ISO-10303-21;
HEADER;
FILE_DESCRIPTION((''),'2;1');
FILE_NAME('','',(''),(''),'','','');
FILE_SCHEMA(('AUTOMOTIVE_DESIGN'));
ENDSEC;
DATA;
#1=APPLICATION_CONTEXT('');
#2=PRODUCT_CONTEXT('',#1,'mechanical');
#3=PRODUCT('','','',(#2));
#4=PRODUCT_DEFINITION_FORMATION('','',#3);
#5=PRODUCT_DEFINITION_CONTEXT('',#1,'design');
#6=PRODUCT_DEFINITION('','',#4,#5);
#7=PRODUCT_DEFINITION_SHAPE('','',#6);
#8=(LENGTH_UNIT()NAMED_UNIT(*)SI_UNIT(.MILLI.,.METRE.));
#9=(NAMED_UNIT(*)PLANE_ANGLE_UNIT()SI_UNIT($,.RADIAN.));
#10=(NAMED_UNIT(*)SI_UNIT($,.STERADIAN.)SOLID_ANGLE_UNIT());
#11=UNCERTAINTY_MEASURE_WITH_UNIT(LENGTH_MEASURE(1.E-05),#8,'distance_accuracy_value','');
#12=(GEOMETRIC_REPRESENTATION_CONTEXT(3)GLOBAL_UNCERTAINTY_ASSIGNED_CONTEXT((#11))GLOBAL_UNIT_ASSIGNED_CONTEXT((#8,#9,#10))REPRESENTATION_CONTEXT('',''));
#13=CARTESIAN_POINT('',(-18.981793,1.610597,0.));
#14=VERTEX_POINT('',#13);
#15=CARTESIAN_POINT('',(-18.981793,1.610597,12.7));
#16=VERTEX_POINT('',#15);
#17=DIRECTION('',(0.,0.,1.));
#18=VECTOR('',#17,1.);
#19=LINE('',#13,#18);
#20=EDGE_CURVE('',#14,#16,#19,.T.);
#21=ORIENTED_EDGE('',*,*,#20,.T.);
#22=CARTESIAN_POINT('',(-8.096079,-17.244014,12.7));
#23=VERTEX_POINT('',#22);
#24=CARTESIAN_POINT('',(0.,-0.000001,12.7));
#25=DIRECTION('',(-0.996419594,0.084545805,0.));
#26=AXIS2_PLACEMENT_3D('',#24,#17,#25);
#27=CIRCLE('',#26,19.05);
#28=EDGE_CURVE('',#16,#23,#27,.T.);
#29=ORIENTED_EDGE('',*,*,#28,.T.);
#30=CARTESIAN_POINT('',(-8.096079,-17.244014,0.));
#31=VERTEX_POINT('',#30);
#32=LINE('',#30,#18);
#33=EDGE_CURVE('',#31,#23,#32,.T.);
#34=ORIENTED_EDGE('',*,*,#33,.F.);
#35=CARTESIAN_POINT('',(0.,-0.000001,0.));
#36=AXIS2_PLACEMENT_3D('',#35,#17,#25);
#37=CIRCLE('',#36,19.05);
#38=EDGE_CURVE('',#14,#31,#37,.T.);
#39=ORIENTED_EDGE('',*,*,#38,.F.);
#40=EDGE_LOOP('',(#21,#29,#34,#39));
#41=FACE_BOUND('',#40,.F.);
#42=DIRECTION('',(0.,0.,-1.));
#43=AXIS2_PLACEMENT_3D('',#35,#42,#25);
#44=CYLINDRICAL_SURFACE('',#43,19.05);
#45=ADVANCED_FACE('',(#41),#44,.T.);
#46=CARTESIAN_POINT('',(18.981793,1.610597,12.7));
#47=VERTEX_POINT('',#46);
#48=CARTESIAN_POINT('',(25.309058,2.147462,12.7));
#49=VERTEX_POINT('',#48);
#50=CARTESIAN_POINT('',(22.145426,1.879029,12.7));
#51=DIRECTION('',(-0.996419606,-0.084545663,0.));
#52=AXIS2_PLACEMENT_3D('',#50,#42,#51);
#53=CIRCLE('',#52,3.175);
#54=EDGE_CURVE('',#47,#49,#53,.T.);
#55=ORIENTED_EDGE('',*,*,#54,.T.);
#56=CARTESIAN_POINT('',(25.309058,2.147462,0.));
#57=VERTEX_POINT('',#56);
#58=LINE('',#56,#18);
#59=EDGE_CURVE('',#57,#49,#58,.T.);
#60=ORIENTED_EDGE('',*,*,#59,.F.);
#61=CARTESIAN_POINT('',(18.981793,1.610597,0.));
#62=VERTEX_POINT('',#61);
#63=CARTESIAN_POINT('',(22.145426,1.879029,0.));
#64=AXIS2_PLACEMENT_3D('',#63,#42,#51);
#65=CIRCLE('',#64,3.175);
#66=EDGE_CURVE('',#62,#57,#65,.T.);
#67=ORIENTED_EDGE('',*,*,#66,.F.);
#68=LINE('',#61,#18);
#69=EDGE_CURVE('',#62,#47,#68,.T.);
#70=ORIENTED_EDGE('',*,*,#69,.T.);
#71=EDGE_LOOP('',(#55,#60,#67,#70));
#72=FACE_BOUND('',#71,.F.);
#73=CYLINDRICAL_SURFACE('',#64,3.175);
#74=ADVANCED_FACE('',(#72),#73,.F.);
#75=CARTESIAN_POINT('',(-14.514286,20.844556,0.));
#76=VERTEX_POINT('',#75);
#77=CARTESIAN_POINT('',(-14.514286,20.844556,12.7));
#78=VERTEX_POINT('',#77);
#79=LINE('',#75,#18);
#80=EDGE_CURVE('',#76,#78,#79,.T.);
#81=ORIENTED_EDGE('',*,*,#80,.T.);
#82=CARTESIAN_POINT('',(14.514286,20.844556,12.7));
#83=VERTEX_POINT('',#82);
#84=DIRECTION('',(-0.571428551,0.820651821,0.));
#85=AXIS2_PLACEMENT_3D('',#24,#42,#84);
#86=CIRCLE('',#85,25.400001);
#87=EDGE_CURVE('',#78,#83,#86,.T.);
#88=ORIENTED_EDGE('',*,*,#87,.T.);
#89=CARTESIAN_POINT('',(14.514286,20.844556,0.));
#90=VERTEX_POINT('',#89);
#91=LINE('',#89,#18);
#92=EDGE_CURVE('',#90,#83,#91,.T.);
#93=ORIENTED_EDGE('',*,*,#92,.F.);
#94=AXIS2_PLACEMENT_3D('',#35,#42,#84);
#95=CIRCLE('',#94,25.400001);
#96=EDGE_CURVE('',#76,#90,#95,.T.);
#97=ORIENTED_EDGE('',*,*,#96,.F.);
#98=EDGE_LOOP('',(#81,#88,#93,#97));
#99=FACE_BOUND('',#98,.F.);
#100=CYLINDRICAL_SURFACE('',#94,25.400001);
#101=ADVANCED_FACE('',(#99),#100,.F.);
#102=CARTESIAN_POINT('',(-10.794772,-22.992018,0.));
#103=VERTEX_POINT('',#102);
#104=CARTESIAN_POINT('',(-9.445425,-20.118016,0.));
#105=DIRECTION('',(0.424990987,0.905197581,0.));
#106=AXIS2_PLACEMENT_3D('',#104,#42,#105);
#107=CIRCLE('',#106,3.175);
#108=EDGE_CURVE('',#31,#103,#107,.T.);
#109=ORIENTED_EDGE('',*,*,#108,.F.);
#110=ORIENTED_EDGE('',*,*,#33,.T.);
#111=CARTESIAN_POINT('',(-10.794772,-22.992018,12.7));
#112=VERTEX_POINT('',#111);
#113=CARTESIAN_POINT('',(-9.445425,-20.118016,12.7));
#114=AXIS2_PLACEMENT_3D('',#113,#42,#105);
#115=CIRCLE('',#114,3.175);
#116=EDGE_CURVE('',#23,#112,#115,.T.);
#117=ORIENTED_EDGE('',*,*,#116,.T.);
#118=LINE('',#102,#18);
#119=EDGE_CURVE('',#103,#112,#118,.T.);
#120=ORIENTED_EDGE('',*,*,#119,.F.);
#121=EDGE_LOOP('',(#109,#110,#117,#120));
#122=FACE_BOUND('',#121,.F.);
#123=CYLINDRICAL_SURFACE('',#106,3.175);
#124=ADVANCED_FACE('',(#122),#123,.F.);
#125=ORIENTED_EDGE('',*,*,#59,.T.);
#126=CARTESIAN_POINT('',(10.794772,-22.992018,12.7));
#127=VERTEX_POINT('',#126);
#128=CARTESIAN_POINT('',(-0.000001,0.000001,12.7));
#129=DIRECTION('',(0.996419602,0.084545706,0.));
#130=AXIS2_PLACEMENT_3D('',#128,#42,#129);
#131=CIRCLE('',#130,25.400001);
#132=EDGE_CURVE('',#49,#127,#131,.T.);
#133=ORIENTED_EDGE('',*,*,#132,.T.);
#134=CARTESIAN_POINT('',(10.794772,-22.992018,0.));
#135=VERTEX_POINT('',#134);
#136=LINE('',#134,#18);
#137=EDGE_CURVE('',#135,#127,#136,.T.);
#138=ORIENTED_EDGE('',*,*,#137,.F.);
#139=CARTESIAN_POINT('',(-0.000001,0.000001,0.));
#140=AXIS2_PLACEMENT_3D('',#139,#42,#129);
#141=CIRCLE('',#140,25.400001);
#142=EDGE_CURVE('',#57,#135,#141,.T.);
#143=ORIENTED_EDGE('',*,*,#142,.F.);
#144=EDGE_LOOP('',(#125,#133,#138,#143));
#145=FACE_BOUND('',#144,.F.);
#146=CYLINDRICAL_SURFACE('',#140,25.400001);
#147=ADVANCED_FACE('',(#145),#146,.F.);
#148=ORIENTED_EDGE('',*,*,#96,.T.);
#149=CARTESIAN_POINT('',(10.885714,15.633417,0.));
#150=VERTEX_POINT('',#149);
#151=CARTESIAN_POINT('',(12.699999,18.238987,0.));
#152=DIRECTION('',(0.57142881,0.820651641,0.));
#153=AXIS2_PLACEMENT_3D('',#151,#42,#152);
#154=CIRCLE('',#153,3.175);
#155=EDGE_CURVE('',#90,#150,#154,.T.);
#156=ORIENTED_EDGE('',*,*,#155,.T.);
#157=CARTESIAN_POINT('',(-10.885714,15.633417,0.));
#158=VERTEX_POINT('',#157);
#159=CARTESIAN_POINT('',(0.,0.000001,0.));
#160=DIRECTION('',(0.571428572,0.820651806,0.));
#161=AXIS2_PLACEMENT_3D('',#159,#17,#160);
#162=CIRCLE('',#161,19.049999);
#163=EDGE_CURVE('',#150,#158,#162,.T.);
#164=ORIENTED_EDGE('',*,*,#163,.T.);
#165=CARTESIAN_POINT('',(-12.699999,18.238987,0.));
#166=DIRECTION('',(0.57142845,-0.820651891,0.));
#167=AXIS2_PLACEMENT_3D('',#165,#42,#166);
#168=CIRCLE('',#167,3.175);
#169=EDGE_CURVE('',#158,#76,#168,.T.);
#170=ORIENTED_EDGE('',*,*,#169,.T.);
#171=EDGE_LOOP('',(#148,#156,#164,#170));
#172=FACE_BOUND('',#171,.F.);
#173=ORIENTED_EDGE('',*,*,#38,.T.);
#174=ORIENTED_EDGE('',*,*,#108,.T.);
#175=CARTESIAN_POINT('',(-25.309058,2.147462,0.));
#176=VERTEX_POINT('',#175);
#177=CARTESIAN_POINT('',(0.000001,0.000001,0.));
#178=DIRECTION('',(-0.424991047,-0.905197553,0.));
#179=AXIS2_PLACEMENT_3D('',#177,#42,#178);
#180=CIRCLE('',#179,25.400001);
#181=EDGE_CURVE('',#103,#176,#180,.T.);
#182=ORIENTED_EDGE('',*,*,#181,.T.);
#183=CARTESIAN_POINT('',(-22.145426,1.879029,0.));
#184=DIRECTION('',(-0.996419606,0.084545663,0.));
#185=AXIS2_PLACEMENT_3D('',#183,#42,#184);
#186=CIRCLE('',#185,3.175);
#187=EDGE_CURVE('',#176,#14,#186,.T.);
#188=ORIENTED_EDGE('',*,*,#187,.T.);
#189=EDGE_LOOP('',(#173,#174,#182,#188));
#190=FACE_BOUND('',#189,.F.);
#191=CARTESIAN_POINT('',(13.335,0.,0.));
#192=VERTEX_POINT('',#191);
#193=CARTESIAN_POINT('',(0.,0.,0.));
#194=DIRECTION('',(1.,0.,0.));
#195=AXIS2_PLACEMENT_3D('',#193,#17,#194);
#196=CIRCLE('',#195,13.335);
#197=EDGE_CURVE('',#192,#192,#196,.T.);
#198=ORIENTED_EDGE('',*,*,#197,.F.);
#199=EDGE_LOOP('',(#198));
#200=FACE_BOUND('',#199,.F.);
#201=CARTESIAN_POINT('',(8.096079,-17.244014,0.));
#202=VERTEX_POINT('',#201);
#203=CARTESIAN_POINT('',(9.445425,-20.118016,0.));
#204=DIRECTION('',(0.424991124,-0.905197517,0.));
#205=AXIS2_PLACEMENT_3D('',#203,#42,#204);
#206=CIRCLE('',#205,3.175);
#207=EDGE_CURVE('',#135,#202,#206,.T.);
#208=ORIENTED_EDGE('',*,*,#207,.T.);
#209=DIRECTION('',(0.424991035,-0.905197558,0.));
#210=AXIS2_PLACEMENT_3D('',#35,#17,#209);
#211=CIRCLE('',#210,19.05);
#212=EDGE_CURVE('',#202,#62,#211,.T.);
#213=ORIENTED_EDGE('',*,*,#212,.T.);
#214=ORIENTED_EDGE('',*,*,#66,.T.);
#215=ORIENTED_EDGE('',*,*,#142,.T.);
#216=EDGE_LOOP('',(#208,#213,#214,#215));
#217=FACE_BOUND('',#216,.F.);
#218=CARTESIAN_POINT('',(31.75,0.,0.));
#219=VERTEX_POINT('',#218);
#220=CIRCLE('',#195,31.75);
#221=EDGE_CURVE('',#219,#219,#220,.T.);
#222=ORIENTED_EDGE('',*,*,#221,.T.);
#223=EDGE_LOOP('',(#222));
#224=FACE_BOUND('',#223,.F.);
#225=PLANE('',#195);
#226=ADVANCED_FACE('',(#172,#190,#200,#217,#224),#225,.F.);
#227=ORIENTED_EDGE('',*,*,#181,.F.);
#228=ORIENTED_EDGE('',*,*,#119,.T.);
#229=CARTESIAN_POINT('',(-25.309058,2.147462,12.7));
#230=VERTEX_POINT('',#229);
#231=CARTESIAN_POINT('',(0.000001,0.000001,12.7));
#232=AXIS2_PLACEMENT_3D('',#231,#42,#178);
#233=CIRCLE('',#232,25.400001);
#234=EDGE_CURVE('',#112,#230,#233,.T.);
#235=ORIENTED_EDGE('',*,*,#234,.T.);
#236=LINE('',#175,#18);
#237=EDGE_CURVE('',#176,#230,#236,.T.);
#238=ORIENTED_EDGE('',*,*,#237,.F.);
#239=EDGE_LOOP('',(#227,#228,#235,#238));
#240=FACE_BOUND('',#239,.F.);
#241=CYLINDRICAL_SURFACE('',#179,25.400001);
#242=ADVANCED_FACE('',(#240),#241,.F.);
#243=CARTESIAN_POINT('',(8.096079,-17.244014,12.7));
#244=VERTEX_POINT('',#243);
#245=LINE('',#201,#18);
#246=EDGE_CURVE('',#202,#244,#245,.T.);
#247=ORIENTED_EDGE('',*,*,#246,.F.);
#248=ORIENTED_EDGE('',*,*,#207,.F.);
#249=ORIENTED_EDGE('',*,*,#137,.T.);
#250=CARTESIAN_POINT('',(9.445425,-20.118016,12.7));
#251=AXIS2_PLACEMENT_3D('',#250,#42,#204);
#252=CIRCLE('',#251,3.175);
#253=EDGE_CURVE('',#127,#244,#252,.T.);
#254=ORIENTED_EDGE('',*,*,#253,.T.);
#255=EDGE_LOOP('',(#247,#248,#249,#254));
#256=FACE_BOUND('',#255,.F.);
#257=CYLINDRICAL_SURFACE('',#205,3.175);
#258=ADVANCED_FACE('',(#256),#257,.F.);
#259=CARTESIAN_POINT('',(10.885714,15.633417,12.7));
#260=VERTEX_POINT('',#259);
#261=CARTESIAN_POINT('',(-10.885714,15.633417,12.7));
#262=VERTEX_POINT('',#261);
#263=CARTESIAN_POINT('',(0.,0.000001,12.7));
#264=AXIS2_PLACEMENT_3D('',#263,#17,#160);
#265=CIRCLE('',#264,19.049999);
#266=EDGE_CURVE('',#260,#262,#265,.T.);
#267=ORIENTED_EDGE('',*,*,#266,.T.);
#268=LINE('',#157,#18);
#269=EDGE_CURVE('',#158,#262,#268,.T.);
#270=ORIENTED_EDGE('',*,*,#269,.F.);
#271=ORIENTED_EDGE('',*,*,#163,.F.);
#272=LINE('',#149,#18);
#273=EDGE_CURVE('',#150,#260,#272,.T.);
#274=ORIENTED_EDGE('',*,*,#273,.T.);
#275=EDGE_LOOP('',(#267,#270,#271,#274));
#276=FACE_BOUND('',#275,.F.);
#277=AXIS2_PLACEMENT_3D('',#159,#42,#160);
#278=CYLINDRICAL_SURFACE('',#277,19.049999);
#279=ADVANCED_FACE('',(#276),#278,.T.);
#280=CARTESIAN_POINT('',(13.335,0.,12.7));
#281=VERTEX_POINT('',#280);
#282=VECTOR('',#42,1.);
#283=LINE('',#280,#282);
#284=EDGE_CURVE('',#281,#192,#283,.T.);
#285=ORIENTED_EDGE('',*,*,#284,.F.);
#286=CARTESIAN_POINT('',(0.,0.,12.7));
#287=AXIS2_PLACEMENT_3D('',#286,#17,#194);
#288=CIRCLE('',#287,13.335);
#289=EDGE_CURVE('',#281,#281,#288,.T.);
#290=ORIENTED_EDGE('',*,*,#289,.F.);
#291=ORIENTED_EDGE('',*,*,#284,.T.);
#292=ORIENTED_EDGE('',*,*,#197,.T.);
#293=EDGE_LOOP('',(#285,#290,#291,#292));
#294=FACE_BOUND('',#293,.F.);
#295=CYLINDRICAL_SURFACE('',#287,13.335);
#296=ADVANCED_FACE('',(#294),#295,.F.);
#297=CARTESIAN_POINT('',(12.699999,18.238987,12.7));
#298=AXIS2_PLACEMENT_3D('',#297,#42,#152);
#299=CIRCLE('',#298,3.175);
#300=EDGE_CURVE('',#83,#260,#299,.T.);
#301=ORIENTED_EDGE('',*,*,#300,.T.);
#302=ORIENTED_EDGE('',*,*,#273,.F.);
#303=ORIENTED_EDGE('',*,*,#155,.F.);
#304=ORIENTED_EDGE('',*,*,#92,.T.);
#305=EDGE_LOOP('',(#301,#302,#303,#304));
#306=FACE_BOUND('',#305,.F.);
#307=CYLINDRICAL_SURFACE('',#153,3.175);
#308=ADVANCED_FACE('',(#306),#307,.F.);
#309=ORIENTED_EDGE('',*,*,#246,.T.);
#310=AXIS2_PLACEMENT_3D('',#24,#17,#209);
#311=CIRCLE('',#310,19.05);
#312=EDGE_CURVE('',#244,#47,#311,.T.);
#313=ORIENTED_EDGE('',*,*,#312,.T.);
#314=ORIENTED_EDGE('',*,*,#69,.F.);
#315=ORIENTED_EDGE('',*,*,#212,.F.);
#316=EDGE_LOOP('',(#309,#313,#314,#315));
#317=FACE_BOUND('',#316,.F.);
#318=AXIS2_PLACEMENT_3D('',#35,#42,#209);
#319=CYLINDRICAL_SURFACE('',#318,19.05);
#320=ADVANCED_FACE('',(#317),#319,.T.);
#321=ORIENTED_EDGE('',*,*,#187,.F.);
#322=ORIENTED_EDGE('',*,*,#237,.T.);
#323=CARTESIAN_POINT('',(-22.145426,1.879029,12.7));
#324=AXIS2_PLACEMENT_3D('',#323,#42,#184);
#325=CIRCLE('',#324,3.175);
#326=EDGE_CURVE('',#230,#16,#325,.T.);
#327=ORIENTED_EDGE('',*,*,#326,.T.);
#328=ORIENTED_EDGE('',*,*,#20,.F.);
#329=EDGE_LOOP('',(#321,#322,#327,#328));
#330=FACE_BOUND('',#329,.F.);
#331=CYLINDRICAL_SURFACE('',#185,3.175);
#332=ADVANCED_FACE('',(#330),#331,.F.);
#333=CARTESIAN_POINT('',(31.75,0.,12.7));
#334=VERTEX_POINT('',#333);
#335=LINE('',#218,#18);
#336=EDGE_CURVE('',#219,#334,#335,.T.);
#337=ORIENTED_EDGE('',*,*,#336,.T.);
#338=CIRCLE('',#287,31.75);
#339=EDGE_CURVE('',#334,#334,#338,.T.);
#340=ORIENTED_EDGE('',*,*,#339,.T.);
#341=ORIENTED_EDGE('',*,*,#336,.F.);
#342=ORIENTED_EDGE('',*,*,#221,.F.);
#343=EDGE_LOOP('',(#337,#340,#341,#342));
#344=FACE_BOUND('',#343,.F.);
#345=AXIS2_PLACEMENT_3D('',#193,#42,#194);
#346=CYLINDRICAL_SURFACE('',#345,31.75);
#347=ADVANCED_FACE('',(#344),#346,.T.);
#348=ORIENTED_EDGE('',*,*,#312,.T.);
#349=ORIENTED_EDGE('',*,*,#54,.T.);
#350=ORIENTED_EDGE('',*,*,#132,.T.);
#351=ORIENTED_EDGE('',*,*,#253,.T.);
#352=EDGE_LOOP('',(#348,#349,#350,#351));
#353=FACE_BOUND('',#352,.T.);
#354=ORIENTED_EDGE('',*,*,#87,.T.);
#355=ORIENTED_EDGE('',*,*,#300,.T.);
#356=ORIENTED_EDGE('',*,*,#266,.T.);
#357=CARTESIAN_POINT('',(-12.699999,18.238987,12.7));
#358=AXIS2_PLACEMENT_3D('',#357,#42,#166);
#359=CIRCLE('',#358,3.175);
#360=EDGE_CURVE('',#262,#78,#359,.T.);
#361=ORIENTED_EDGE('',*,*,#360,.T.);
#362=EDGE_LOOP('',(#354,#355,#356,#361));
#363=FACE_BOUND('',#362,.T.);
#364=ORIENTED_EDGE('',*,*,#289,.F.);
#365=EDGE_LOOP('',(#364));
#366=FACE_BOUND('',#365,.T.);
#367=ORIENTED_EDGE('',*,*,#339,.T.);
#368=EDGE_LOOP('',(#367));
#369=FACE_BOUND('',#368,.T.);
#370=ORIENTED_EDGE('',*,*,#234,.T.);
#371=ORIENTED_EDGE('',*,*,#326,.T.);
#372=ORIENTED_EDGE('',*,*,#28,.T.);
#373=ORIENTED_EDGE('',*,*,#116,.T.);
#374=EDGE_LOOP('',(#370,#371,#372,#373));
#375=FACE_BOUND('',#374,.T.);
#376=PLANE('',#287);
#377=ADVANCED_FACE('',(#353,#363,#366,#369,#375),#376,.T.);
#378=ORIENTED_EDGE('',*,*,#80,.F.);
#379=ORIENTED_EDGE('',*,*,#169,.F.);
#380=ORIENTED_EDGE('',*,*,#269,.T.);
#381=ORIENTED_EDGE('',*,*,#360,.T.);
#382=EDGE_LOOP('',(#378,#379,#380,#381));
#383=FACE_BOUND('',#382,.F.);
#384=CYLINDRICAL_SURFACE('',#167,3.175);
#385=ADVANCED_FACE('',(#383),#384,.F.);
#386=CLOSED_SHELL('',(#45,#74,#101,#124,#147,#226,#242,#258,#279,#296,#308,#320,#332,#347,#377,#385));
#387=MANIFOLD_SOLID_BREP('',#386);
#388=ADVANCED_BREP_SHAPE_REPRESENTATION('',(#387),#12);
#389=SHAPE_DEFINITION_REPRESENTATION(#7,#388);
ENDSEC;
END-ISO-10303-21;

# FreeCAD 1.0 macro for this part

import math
import FreeCAD as App
import Part
import Sketcher

V = App.Vector
Q = App.Units.Quantity

doc = App.newDocument("Part")
body = doc.addObject("PartDesign::Body", "Body")

# Sketch on XY plane
sketch1 = body.newObject("Sketcher::SketchObject", "Sketch")
sketch1.AttachmentSupport = (doc.getObject("XY_Plane"), [""])
sketch1.MapMode = "FlatFace"
sketch1.addGeometry([
    Part.Circle(V(0, 0, 0), V(0, 0, 1), 31.75),  # 0
    Part.ArcOfCircle(Part.Circle(V(-9.445425, -20.118016, 0), V(0, 0, 1), 3.175), math.radians(-115.150102), math.radians(64.849907)),  # 1
    Part.ArcOfCircle(Part.Circle(V(0.000001, 0.000001, 0), V(0, 0, 1), 25.400001), math.radians(175.150098), math.radians(244.849903)),  # 2
    Part.ArcOfCircle(Part.Circle(V(-22.145426, 1.879029, 0), V(0, 0, 1), 3.175), math.radians(-4.849899), math.radians(175.150101)),  # 3
    Part.ArcOfCircle(Part.Circle(V(0, -0.000001, 0), V(0, 0, 1), 19.05), math.radians(175.150093), math.radians(244.849904)),  # 4
    Part.ArcOfCircle(Part.Circle(V(22.145426, 1.879029, 0), V(0, 0, 1), 3.175), math.radians(4.849899), math.radians(184.849899)),  # 5
    Part.ArcOfCircle(Part.Circle(V(-0.000001, 0.000001, 0), V(0, 0, 1), 25.400001), math.radians(-64.849903), math.radians(4.849902)),  # 6
    Part.ArcOfCircle(Part.Circle(V(9.445425, -20.118016, 0), V(0, 0, 1), 3.175), math.radians(115.150093), math.radians(295.150102)),  # 7
    Part.ArcOfCircle(Part.Circle(V(0, -0.000001, 0), V(0, 0, 1), 19.05), math.radians(-64.849904), math.radians(4.849907)),  # 8
    Part.ArcOfCircle(Part.Circle(V(12.699999, 18.238987, 0), V(0, 0, 1), 3.175), math.radians(-124.849896), math.radians(55.150079)),  # 9
    Part.ArcOfCircle(Part.Circle(V(0, 0.000001, 0), V(0, 0, 1), 19.049999), math.radians(55.150095), math.radians(124.849905)),  # 10
    Part.ArcOfCircle(Part.Circle(V(-12.699999, 18.238987, 0), V(0, 0, 1), 3.175), math.radians(124.849921), math.radians(304.849896)),  # 11
    Part.ArcOfCircle(Part.Circle(V(0, -0.000001, 0), V(0, 0, 1), 25.400001), math.radians(55.150097), math.radians(124.849903)),  # 12
], False)
sketch1.addConstraint([
    Sketcher.Constraint("Coincident", 1, 1, 2, 2),
    Sketcher.Constraint("Coincident", 2, 1, 3, 2),
    Sketcher.Constraint("Coincident", 3, 1, 4, 1),
    Sketcher.Constraint("Coincident", 4, 2, 1, 2),
    Sketcher.Constraint("Coincident", 5, 1, 6, 2),
    Sketcher.Constraint("Coincident", 6, 1, 7, 2),
    Sketcher.Constraint("Coincident", 7, 1, 8, 1),
    Sketcher.Constraint("Coincident", 8, 2, 5, 2),
    Sketcher.Constraint("Coincident", 9, 1, 10, 1),
    Sketcher.Constraint("Coincident", 10, 2, 11, 2),
    Sketcher.Constraint("Coincident", 11, 1, 12, 2),
    Sketcher.Constraint("Coincident", 12, 1, 9, 2),
    Sketcher.Constraint("Coincident", 0, 3, -1, 1),
    Sketcher.Constraint("Coincident", 2, 3, -1, 1),
    Sketcher.Constraint("Coincident", 4, 3, -1, 1),
    Sketcher.Constraint("Coincident", 6, 3, -1, 1),
    Sketcher.Constraint("Coincident", 8, 3, -1, 1),
    Sketcher.Constraint("Coincident", 10, 3, -1, 1),
    Sketcher.Constraint("Coincident", 12, 3, -1, 1),
    Sketcher.Constraint("Radius", 2, Q("1 in")),
    Sketcher.Constraint("Radius", 6, Q("1 in")),
    Sketcher.Constraint("Radius", 12, Q("1.0000001 in")),
    Sketcher.Constraint("Diameter", 0, Q("2.5 in")),
    Sketcher.Constraint("Radius", 4, Q("0.75 in")),
    Sketcher.Constraint("Radius", 8, Q("0.75 in")),
    Sketcher.Constraint("Radius", 10, Q("0.75 in")),
    Sketcher.Constraint("DistanceX", -1, 1, 9, 3, Q("0.5 in")),
    Sketcher.Constraint("DistanceX", 11, 3, -1, 1, Q("0.5 in")),
    Sketcher.Constraint("DistanceX", 3, 3, 1, 3, Q("0.5 in")),
    Sketcher.Constraint("DistanceY", 1, 1, 1, 3, Q("2.874002 mm")),
    Sketcher.Constraint("DistanceY", 1, 1, 7, 3, Q("2.874002 mm")),
    Sketcher.Constraint("DistanceY", 6, 1, 7, 3, Q("2.874002 mm")),
    Sketcher.Constraint("DistanceY", -1, 1, 3, 3, Q("1.879029 mm")),
    Sketcher.Constraint("DistanceY", -1, 1, 5, 3, Q("1.879029 mm")),
    Sketcher.Constraint("DistanceY", -1, 1, 2, 1, Q("2.147462 mm")),
    Sketcher.Constraint("DistanceX", 4, 2, -1, 1, Q("8.096079 mm")),
    Sketcher.Constraint("DistanceY", -1, 1, 5, 1, Q("2.147462 mm")),
    Sketcher.Constraint("DistanceX", -1, 1, 7, 1, Q("8.096079 mm")),
    Sketcher.Constraint("DistanceY", 3, 1, 11, 3, Q("16.62839 mm")),
    Sketcher.Constraint("DistanceY", 8, 2, 9, 3, Q("16.62839 mm")),
    Sketcher.Constraint("DistanceY", 9, 1, 9, 3, Q("2.60557 mm")),
    Sketcher.Constraint("DistanceY", 10, 2, 11, 3, Q("2.60557 mm")),
    Sketcher.Constraint("DistanceY", 11, 3, 11, 1, Q("2.605569 mm")),
    Sketcher.Constraint("DistanceY", 9, 3, 12, 1, Q("2.605569 mm")),
])
pad1 = body.newObject("PartDesign::Pad", "Pad")
pad1.Profile = sketch1
pad1.Length = Q("0.5 in")

# Sketch on XY plane
sketch2 = body.newObject("Sketcher::SketchObject", "Sketch001")
sketch2.AttachmentSupport = (doc.getObject("XY_Plane"), [""])
sketch2.MapMode = "FlatFace"
sketch2.AttachmentOffset = App.Placement(V(0, 0, 0.5 * 25.4), App.Rotation())
sketch2.addGeometry(Part.Circle(V(0, 0, 0), V(0, 0, 1), 13.335), False)
sketch2.addConstraint([
    Sketcher.Constraint("Coincident", 0, 3, -1, 1),
    Sketcher.Constraint("Diameter", 0, Q("1.05 in")),
])
pocket1 = body.newObject("PartDesign::Pocket", "Pocket")
pocket1.Profile = sketch2
pocket1.Length = Q("1 in")

doc.recompute()
